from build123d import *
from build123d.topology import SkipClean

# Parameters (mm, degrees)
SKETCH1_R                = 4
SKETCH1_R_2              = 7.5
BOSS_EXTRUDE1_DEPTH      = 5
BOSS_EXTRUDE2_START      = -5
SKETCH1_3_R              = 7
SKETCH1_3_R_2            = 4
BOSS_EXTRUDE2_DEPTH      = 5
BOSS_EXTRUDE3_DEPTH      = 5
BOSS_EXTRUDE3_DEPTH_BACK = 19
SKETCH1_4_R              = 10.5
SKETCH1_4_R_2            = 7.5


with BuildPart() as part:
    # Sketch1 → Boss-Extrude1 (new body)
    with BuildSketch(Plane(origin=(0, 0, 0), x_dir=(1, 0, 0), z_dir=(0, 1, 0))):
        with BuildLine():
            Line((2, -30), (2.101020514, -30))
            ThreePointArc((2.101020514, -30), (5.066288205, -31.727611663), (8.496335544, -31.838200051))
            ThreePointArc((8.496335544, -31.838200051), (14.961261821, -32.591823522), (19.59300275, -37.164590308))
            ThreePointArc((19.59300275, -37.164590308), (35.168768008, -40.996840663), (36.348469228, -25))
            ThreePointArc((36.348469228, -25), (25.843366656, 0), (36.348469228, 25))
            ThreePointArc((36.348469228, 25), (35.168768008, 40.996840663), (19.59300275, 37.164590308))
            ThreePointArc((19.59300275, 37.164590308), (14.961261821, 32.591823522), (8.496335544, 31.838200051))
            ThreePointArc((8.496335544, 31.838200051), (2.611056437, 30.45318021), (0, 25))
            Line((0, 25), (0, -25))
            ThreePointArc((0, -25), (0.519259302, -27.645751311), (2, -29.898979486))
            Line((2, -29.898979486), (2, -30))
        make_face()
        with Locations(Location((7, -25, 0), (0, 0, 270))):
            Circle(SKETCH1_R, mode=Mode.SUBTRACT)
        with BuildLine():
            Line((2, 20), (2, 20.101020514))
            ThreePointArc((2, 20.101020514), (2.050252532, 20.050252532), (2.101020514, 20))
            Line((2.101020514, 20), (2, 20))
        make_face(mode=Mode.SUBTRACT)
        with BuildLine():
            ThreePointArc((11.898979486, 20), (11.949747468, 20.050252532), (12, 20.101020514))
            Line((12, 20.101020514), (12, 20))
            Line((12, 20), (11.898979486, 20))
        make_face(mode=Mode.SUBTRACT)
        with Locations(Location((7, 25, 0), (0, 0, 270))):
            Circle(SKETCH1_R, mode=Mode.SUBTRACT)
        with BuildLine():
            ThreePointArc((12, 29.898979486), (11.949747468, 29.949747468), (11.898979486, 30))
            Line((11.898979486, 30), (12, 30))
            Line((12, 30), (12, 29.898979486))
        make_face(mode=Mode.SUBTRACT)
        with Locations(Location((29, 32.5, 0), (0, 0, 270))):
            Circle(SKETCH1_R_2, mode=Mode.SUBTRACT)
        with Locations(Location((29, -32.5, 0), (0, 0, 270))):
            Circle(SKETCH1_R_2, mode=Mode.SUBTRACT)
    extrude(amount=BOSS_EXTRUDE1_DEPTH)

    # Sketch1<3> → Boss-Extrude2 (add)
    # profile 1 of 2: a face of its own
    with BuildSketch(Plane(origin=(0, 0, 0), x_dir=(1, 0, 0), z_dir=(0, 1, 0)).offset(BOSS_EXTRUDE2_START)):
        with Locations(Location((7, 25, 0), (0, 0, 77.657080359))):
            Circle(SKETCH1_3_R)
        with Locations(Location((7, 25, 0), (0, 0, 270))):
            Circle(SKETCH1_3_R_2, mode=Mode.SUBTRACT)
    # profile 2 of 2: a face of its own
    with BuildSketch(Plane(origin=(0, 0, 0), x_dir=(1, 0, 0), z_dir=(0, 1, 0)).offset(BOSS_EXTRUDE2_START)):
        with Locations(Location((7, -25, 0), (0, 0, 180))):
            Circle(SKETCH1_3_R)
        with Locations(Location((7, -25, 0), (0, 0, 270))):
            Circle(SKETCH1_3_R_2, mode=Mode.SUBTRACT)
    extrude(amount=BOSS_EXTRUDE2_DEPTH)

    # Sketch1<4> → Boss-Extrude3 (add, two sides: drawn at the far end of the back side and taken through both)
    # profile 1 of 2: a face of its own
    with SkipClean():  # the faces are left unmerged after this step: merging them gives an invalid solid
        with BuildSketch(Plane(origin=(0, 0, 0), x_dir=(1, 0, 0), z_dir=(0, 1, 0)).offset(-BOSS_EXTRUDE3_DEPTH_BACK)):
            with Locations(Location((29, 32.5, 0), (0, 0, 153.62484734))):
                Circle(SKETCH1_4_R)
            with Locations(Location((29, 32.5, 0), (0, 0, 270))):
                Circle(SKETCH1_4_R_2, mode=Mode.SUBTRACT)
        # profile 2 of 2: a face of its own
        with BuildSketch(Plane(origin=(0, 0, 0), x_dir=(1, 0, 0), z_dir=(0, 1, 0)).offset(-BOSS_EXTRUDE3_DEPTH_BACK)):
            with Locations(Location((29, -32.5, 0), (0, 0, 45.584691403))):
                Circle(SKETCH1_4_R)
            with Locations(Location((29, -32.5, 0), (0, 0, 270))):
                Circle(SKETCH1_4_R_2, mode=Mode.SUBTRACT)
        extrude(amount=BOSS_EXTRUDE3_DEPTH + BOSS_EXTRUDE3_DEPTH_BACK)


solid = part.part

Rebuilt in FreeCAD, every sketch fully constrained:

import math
import FreeCAD as App
import Part
import Sketcher

V = App.Vector

doc = App.newDocument("Part")
body = doc.addObject("PartDesign::Body", "Body")

# Sketch on XZ plane
sketch1 = body.newObject("Sketcher::SketchObject", "Sketch")
sketch1.AttachmentSupport = (doc.getObject("XZ_Plane"), [""])
sketch1.MapMode = "FlatFace"
sketch1.addGeometry(Part.LineSegment(V(2, 30, 0), V(2.101021, 30, 0)), False)
sketch1.addGeometry(Part.ArcOfCircle(Part.Circle(V(7, 25, 0), V(0, 0, 1), 7), math.radians(77.65708), math.radians(134.415309)), False)
sketch1.addGeometry(Part.ArcOfCircle(Part.Circle(V(10.633958, 41.607057, 0), V(0, 0, 1), 10), math.radians(-102.34292), math.radians(-26.375153)), False)
sketch1.addGeometry(Part.ArcOfCircle(Part.Circle(V(29, 32.5, 0), V(0, 0, 1), 10.5), math.radians(-45.584691), math.radians(153.624847)), False)
sketch1.addGeometry(Part.ArcOfCircle(Part.Circle(V(60.843367, 0, 0), V(0, 0, 1), 35), math.radians(134.415309), math.radians(225.584691)), False)
sketch1.addGeometry(Part.ArcOfCircle(Part.Circle(V(29, -32.5, 0), V(0, 0, 1), 10.5), math.radians(-153.624847), math.radians(45.584691)), False)
sketch1.addGeometry(Part.ArcOfCircle(Part.Circle(V(10.633958, -41.607057, 0), V(0, 0, 1), 10), math.radians(26.375153), math.radians(102.34292)), False)
sketch1.addGeometry(Part.ArcOfCircle(Part.Circle(V(7, -25, 0), V(0, 0, 1), 7), math.radians(180), math.radians(282.34292)), False)
sketch1.addGeometry(Part.LineSegment(V(0, -25, 0), V(0, 25, 0)), False)
sketch1.addGeometry(Part.ArcOfCircle(Part.Circle(V(7, 25, 0), V(0, 0, 1), 7), math.radians(135.584691), math.radians(180)), False)
sketch1.addGeometry(Part.LineSegment(V(2, 29.898979, 0), V(2, 30, 0)), False)
sketch1.addGeometry(Part.Circle(V(7, 25, 0), V(0, 0, 1), 4), False)
sketch1.addGeometry(Part.Circle(V(29, 32.5, 0), V(0, 0, 1), 7.5), False)
sketch1.addGeometry(Part.LineSegment(V(2.101021, -20, 0), V(2, -20, 0)), False)
sketch1.addGeometry(Part.LineSegment(V(2, -20, 0), V(2, -20.101021, 0)), False)
sketch1.addGeometry(Part.ArcOfCircle(Part.Circle(V(7.00001, -25.00001, 0), V(0, 0, 1), 7.000014), math.radians(134.41531), math.radians(135.58469)), False)
sketch1.addGeometry(Part.Circle(V(7, -25, 0), V(0, 0, 1), 4), False)
sketch1.addGeometry(Part.LineSegment(V(12, -20, 0), V(11.898979, -20, 0)), False)
sketch1.addGeometry(Part.ArcOfCircle(Part.Circle(V(6.99999, -25.00001, 0), V(0, 0, 1), 7.000014), math.radians(44.41531), math.radians(45.58469)), False)
sketch1.addGeometry(Part.LineSegment(V(12, -20.101021, 0), V(12, -20, 0)), False)
sketch1.addGeometry(Part.LineSegment(V(12, -30, 0), V(12, -29.898979, 0)), False)
sketch1.addGeometry(Part.ArcOfCircle(Part.Circle(V(6.99999, -24.99999, 0), V(0, 0, 1), 7.000014), math.radians(-45.58469), math.radians(-44.41531)), False)
sketch1.addGeometry(Part.LineSegment(V(11.898979, -30, 0), V(12, -30, 0)), False)
sketch1.addGeometry(Part.Circle(V(29, -32.5, 0), V(0, 0, 1), 7.5), False)
sketch1.addConstraint(Sketcher.Constraint("Coincident", 0, 2, 1, 2))
sketch1.addConstraint(Sketcher.Constraint("Tangent", 1, 1, 2, 1))
sketch1.addConstraint(Sketcher.Constraint("Tangent", 2, 2, 3, 2))
sketch1.addConstraint(Sketcher.Constraint("Tangent", 3, 1, 4, 1))
sketch1.addConstraint(Sketcher.Constraint("Tangent", 4, 2, 5, 2))
sketch1.addConstraint(Sketcher.Constraint("Tangent", 5, 1, 6, 1))
sketch1.addConstraint(Sketcher.Constraint("Tangent", 6, 2, 7, 2))
sketch1.addConstraint(Sketcher.Constraint("Tangent", 7, 1, 8, 1))
sketch1.addConstraint(Sketcher.Constraint("Tangent", 8, 2, 9, 2))
sketch1.addConstraint(Sketcher.Constraint("Coincident", 9, 1, 10, 1))
sketch1.addConstraint(Sketcher.Constraint("Coincident", 10, 2, 0, 1))
sketch1.addConstraint(Sketcher.Constraint("Coincident", 13, 2, 14, 1))
sketch1.addConstraint(Sketcher.Constraint("Coincident", 14, 2, 15, 2))
sketch1.addConstraint(Sketcher.Constraint("Coincident", 15, 1, 13, 1))
sketch1.addConstraint(Sketcher.Constraint("Coincident", 17, 2, 18, 2))
sketch1.addConstraint(Sketcher.Constraint("Coincident", 18, 1, 19, 1))
sketch1.addConstraint(Sketcher.Constraint("Coincident", 19, 2, 17, 1))
sketch1.addConstraint(Sketcher.Constraint("Coincident", 20, 2, 21, 2))
sketch1.addConstraint(Sketcher.Constraint("Coincident", 21, 1, 22, 1))
sketch1.addConstraint(Sketcher.Constraint("Coincident", 22, 2, 20, 1))
sketch1.addConstraint(Sketcher.Constraint("Horizontal", 0))
sketch1.addConstraint(Sketcher.Constraint("Vertical", 8))
sketch1.addConstraint(Sketcher.Constraint("Vertical", 10))
sketch1.addConstraint(Sketcher.Constraint("Horizontal", 13))
sketch1.addConstraint(Sketcher.Constraint("Vertical", 14))
sketch1.addConstraint(Sketcher.Constraint("Horizontal", 17))
sketch1.addConstraint(Sketcher.Constraint("Vertical", 19))
sketch1.addConstraint(Sketcher.Constraint("Vertical", 20))
sketch1.addConstraint(Sketcher.Constraint("Horizontal", 22))
sketch1.addConstraint(Sketcher.Constraint("Coincident", 9, 3, 1, 3))
sketch1.addConstraint(Sketcher.Constraint("Coincident", 11, 3, 1, 3))
sketch1.addConstraint(Sketcher.Constraint("Coincident", 12, 3, 3, 3))
sketch1.addConstraint(Sketcher.Constraint("Coincident", 16, 3, 7, 3))
sketch1.addConstraint(Sketcher.Constraint("Coincident", 23, 3, 5, 3))
sketch1.addConstraint(Sketcher.Constraint("Equal", 3, 5))
sketch1.addConstraint(Sketcher.Constraint("Equal", 2, 6))
sketch1.addConstraint(Sketcher.Constraint("Equal", 1, 7))
sketch1.addConstraint(Sketcher.Constraint("Equal", 7, 9))
sketch1.addConstraint(Sketcher.Constraint("Equal", 11, 16))
sketch1.addConstraint(Sketcher.Constraint("Equal", 15, 18))
sketch1.addConstraint(Sketcher.Constraint("Equal", 18, 21))
sketch1.addConstraint(Sketcher.Constraint("Equal", 12, 23))
sketch1.addConstraint(Sketcher.Constraint("Symmetric", 7, 1, 8, 2, -1, 1))
sketch1.addConstraint(Sketcher.Constraint("Symmetric", 3, 3, 5, 3, -1))
sketch1.addConstraint(Sketcher.Constraint("Horizontal", 15, 3, 18, 3))
sketch1.addConstraint(Sketcher.Constraint("Horizontal", 11, 3, 3, 1))
sketch1.addConstraint(Sketcher.Constraint("Horizontal", 15, 1, 17, 2))
sketch1.addConstraint(Sketcher.Constraint("Horizontal", 14, 2, 18, 1))
sketch1.addConstraint(Sketcher.Constraint("Vertical", 18, 3, 21, 3))
sketch1.addConstraint(Sketcher.Constraint("Vertical", 10, 2, 13, 2))
sketch1.addConstraint(Sketcher.Constraint("Vertical", 0, 2, 15, 1))
sketch1.addConstraint(Sketcher.Constraint("Vertical", 19, 2, 20, 2))
sketch1.addConstraint(Sketcher.Constraint("Vertical", 17, 2, 21, 1))
sketch1.addConstraint(Sketcher.Constraint("Equal", 22, 10))
sketch1.addConstraint(Sketcher.Constraint("Equal", 10, 14))
sketch1.addConstraint(Sketcher.Constraint("Diameter", 11, 8.0))
sketch1.addConstraint(Sketcher.Constraint("Diameter", 12, 15.0))
sketch1.addConstraint(Sketcher.Constraint("Radius", 1, 7.0))
sketch1.addConstraint(Sketcher.Constraint("Radius", 2, 10.0))
sketch1.addConstraint(Sketcher.Constraint("Radius", 4, 35.0))
sketch1.addConstraint(Sketcher.Constraint("Radius", 3, 10.5))
sketch1.addConstraint(Sketcher.Constraint("DistanceY", 8, 1, 8, 2, 50.0))
sketch1.addConstraint(Sketcher.Constraint("DistanceX", -1, 1, 3, 3, 29.0))
sketch1.addConstraint(Sketcher.Constraint("DistanceY", -1, 1, 0, 2, 30.0))
sketch1.addConstraint(Sketcher.Constraint("DistanceY", 13, 2, -1, 1, 20.0))
sketch1.addConstraint(Sketcher.Constraint("DistanceX", -1, 1, 18, 1, 12.0))
sketch1.addConstraint(Sketcher.Constraint("DistanceY", 21, 1, -1, 1, 30.0))
sketch1.addConstraint(Sketcher.Constraint("Radius", 15, 7.000014))
pad1 = body.newObject("PartDesign::Pad", "Pad")
pad1.Profile = sketch1
pad1.Length = 5
pad1.Reversed = True

# Sketch on XZ plane
sketch2 = body.newObject("Sketcher::SketchObject", "Sketch001")
sketch2.AttachmentSupport = (doc.getObject("XZ_Plane"), [""])
sketch2.MapMode = "FlatFace"
sketch2.AttachmentOffset = App.Placement(V(0, 0, 5), App.Rotation())
sketch2.addGeometry(Part.Circle(V(7, -25, 0), V(0, 0, 1), 7), False)
sketch2.addGeometry(Part.Circle(V(7, -25, 0), V(0, 0, 1), 4), False)
sketch2.addGeometry(Part.Circle(V(7, 25, 0), V(0, 0, 1), 7), False)
sketch2.addGeometry(Part.Circle(V(7, 25, 0), V(0, 0, 1), 4), False)
sketch2.addConstraint(Sketcher.Constraint("Coincident", 1, 3, 0, 3))
sketch2.addConstraint(Sketcher.Constraint("Coincident", 3, 3, 2, 3))
sketch2.addConstraint(Sketcher.Constraint("Equal", 0, 2))
sketch2.addConstraint(Sketcher.Constraint("Equal", 1, 3))
sketch2.addConstraint(Sketcher.Constraint("Symmetric", 0, 3, 2, 3, -1))
sketch2.addConstraint(Sketcher.Constraint("Diameter", 0, 14.0))
sketch2.addConstraint(Sketcher.Constraint("Diameter", 1, 8.0))
sketch2.addConstraint(Sketcher.Constraint("DistanceX", -1, 1, 0, 3, 7.0))
sketch2.addConstraint(Sketcher.Constraint("DistanceY", 0, 3, -1, 1, 25.0))
pad2 = body.newObject("PartDesign::Pad", "Pad001")
pad2.Profile = sketch2
pad2.Length = 5
pad2.Reversed = True

# Sketch on XZ plane
sketch3 = body.newObject("Sketcher::SketchObject", "Sketch002")
sketch3.AttachmentSupport = (doc.getObject("XZ_Plane"), [""])
sketch3.MapMode = "FlatFace"
sketch3.addGeometry(Part.Circle(V(29, -32.5, 0), V(0, 0, 1), 10.5), False)
sketch3.addGeometry(Part.Circle(V(29, -32.5, 0), V(0, 0, 1), 7.5), False)
sketch3.addGeometry(Part.Circle(V(29, 32.5, 0), V(0, 0, 1), 10.5), False)
sketch3.addGeometry(Part.Circle(V(29, 32.5, 0), V(0, 0, 1), 7.5), False)
sketch3.addConstraint(Sketcher.Constraint("Coincident", 1, 3, 0, 3))
sketch3.addConstraint(Sketcher.Constraint("Coincident", 3, 3, 2, 3))
sketch3.addConstraint(Sketcher.Constraint("Equal", 0, 2))
sketch3.addConstraint(Sketcher.Constraint("Equal", 1, 3))
sketch3.addConstraint(Sketcher.Constraint("Symmetric", 0, 3, 2, 3, -1))
sketch3.addConstraint(Sketcher.Constraint("Diameter", 0, 21.0))
sketch3.addConstraint(Sketcher.Constraint("Diameter", 1, 15.0))
sketch3.addConstraint(Sketcher.Constraint("DistanceX", -1, 1, 0, 3, 29.0))
sketch3.addConstraint(Sketcher.Constraint("DistanceY", 0, 3, 2, 3, 65.0))
pad3 = body.newObject("PartDesign::Pad", "Pad002")
pad3.Profile = sketch3
pad3.Type = "TwoLengths"
pad3.Length = 5
pad3.Length2 = 19
pad3.Reversed = True

doc.recompute()
